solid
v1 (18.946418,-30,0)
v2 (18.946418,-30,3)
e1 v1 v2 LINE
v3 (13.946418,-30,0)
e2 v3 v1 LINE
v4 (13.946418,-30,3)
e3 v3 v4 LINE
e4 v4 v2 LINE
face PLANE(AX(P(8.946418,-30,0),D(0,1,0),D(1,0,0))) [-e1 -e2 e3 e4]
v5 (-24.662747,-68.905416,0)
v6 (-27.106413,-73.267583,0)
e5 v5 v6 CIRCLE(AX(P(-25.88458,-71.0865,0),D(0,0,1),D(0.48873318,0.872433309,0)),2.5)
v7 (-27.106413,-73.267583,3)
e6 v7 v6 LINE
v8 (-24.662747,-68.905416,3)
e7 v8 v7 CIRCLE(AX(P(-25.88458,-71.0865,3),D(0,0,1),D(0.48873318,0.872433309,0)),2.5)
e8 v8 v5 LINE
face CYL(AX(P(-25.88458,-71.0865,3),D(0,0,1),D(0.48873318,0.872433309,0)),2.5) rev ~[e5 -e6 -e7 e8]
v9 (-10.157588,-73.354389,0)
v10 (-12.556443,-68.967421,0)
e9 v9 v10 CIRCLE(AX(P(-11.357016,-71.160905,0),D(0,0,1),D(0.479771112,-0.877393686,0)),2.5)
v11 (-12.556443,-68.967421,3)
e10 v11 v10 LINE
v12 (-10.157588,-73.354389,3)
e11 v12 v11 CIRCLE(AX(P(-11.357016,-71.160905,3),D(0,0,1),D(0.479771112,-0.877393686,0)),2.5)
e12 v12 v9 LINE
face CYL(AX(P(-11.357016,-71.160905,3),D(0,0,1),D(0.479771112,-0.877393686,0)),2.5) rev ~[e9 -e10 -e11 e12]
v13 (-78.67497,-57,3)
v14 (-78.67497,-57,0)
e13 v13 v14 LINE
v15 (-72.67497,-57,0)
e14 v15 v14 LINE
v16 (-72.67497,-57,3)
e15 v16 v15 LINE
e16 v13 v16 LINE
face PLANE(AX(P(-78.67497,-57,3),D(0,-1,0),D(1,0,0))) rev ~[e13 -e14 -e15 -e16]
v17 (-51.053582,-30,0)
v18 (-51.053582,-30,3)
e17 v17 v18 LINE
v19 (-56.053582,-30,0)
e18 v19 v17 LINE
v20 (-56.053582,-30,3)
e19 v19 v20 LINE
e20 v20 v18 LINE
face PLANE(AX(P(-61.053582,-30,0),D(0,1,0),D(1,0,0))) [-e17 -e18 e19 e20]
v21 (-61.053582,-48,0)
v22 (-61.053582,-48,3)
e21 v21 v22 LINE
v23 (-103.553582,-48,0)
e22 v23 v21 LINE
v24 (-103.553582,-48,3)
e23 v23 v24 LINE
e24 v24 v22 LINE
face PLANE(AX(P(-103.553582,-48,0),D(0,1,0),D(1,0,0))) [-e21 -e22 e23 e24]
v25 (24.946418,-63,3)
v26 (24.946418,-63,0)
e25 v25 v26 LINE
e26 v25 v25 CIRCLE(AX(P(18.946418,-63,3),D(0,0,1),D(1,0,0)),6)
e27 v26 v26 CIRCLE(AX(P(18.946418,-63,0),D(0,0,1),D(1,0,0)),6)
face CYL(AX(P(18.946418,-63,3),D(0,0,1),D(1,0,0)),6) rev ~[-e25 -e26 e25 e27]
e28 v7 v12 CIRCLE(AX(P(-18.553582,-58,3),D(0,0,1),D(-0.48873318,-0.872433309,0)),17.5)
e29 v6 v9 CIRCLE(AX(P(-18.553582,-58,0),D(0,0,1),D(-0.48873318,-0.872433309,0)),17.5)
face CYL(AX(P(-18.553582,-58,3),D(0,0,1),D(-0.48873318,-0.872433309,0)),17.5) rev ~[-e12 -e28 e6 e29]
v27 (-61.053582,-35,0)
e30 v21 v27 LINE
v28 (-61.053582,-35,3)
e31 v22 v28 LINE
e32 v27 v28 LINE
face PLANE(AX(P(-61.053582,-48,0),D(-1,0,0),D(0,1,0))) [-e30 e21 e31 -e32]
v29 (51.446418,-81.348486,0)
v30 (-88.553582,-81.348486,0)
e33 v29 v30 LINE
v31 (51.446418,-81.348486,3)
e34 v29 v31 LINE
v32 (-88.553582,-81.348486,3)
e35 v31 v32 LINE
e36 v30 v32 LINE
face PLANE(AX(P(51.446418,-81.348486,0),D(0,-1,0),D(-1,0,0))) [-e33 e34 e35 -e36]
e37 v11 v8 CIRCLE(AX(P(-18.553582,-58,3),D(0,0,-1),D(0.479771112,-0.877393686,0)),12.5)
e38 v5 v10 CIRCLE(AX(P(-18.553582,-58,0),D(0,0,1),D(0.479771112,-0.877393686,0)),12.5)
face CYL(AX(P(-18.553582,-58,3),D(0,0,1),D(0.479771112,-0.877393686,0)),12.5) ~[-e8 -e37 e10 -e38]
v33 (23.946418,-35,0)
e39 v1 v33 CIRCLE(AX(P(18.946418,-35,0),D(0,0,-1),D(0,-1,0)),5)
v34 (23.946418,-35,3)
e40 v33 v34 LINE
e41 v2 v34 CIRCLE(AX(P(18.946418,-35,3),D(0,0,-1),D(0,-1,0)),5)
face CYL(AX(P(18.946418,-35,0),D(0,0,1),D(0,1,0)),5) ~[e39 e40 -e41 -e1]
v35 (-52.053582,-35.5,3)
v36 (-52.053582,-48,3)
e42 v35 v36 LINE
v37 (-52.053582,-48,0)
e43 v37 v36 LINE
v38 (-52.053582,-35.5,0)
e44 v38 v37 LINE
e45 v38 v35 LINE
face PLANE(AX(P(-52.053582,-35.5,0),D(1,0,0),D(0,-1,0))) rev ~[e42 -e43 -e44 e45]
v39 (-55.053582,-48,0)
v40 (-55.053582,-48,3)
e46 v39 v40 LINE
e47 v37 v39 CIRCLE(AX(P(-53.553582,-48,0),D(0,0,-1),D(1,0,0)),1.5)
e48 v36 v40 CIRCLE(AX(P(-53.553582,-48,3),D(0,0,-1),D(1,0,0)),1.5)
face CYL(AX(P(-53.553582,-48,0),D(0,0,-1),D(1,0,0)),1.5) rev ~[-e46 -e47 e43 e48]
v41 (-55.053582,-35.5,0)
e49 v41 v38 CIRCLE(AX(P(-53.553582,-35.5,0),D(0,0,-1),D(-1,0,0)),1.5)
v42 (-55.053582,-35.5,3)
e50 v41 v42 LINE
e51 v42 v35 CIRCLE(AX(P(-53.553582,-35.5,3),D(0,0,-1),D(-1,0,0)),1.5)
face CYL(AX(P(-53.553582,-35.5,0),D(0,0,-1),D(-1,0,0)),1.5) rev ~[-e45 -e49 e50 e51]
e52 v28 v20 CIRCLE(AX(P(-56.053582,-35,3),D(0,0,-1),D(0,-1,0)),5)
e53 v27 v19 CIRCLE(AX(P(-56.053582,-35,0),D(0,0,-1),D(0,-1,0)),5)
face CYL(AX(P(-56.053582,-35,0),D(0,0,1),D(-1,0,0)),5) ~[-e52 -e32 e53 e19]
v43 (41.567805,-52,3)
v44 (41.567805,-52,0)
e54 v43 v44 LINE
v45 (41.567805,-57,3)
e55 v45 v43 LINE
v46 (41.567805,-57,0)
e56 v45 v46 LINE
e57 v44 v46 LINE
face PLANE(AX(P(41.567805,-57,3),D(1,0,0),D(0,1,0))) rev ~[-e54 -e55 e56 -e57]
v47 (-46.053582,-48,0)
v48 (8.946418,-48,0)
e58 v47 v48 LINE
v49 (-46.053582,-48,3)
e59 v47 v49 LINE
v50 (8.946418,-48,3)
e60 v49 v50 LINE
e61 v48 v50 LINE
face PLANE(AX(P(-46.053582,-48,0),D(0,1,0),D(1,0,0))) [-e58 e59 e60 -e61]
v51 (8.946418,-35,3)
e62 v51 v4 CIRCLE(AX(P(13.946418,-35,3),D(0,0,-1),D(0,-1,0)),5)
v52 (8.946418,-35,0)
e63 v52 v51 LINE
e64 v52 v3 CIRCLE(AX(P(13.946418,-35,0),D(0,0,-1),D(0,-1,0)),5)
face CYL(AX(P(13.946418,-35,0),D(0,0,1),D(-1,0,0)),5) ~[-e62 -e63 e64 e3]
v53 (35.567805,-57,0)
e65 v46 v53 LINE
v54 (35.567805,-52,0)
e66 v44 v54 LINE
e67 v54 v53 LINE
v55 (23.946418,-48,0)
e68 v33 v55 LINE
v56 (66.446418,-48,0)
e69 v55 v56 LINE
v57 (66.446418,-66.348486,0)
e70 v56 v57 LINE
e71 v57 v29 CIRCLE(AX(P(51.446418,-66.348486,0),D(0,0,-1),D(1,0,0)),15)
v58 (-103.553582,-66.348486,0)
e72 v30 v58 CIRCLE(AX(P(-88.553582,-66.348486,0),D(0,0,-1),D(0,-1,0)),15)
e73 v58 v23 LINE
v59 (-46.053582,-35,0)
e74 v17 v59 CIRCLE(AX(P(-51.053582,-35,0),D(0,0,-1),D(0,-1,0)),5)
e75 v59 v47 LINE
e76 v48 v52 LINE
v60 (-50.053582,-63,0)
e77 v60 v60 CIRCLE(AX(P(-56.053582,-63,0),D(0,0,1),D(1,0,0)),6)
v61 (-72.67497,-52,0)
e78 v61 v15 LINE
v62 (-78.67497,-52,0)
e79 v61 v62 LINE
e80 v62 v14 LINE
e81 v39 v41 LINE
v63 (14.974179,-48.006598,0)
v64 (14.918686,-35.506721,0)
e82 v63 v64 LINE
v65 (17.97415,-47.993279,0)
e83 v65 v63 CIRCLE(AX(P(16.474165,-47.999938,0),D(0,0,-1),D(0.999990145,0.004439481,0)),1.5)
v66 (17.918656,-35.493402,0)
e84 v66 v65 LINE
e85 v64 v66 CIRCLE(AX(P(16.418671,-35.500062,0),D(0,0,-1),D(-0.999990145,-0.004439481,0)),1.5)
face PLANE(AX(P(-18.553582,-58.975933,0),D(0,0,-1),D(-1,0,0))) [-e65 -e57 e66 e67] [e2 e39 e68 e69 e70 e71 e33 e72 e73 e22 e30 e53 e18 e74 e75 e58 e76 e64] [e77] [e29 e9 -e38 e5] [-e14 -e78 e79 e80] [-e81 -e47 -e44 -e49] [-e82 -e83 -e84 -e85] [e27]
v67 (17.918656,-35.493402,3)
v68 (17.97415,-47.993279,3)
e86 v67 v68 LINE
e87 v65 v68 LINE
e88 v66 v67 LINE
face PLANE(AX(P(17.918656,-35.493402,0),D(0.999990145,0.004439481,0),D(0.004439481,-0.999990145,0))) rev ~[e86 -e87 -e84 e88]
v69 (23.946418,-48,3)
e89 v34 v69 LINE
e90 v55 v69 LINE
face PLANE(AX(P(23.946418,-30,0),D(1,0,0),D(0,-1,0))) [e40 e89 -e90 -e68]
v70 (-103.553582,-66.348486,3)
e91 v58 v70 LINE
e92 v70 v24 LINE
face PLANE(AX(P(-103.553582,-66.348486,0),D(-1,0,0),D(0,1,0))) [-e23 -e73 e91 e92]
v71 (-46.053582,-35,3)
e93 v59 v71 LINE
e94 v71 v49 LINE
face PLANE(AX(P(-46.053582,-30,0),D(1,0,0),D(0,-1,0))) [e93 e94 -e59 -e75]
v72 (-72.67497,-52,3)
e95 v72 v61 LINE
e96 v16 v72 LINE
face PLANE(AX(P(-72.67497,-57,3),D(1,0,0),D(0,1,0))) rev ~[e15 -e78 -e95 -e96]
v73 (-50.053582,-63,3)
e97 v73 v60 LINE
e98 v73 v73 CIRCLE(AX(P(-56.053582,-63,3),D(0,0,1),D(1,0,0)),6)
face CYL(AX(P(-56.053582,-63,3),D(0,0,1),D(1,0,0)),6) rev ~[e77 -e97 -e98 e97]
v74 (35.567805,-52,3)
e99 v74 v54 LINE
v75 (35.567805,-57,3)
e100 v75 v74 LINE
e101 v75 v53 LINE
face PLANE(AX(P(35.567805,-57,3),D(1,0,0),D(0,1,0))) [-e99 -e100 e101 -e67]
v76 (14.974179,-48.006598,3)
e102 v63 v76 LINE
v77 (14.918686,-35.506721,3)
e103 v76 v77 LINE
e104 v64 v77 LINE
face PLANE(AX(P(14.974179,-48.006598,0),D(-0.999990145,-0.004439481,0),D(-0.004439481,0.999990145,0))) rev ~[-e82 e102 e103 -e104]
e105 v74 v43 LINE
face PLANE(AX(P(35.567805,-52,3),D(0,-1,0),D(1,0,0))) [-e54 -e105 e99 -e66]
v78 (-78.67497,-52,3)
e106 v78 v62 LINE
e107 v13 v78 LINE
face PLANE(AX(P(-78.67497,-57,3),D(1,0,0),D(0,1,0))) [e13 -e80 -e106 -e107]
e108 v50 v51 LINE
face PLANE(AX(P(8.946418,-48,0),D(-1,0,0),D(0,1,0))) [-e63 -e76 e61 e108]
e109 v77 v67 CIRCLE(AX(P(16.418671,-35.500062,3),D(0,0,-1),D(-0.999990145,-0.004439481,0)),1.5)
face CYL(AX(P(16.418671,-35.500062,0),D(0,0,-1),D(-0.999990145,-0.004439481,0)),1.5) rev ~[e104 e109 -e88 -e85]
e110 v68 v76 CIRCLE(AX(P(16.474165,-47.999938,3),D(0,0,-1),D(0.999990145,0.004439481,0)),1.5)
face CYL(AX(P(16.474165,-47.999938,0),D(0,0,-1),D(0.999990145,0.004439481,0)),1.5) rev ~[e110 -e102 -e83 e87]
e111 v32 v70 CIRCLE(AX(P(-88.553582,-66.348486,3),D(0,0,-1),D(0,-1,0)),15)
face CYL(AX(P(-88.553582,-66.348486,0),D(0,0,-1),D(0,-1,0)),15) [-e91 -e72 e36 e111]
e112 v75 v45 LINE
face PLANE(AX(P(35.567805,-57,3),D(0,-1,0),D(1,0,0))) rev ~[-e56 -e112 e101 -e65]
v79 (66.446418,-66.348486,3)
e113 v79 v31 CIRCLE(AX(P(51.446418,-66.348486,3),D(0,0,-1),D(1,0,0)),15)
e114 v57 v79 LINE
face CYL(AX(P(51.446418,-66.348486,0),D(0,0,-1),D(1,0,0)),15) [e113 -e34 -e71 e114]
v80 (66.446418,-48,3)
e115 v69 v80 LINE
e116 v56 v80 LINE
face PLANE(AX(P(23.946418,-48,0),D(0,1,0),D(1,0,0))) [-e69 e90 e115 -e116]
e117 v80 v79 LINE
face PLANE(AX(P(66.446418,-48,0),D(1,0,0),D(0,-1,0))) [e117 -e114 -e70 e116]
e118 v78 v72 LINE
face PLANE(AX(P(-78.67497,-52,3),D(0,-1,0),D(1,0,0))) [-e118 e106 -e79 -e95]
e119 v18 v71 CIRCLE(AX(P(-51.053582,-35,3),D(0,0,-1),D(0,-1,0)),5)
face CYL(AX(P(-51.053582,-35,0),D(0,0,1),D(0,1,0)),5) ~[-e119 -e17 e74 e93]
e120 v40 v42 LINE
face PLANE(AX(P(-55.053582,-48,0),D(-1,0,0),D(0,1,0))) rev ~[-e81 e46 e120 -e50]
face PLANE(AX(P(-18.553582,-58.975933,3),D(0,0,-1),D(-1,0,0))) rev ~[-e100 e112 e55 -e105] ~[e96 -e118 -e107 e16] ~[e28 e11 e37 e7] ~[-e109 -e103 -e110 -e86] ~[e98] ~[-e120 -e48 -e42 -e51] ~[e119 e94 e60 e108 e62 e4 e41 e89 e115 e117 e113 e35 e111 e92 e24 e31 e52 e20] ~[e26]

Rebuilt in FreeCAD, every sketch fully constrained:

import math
import FreeCAD as App
import Part
import Sketcher
from FreeCAD import Vector
Q = App.Units.Quantity


def edges_at(feature, points):
    """Names of the edges that pass closest to the given points."""
    edges = feature.Shape.Edges
    near = lambda p: min(range(len(edges)), key=lambda i: edges[i].distToShape(Part.Vertex(*p))[0])
    return sorted({f"Edge{near(p) + 1}" for p in points})

doc = App.newDocument("Part")
body = doc.addObject("PartDesign::Body", "Body")

# Sketch on XY plane
sketch1 = body.newObject("Sketcher::SketchObject", "Sketch")
sketch1.AttachmentSupport = (doc.getObject("XY_Plane"), [""])
sketch1.MapMode = "FlatFace"
sketch1.addGeometry([
    Part.LineSegment(Vector(-61.053582, -48, 0), Vector(-103.553582, -48, 0)),  # 0
    Part.LineSegment(Vector(-103.553582, -48, 0), Vector(-103.553582, -66.348486, 0)),  # 1
    Part.ArcOfCircle(Part.Circle(Vector(-88.553582, -66.348486, 0), Vector(0, 0, 1), 15), math.radians(-180), math.radians(-90)),  # 2
    Part.LineSegment(Vector(-88.553582, -81.348486, 0), Vector(51.446418, -81.348486, 0)),  # 3
    Part.ArcOfCircle(Part.Circle(Vector(51.446418, -66.348486, 0), Vector(0, 0, 1), 15), math.radians(-90), math.radians(0)),  # 4
    Part.LineSegment(Vector(66.446418, -66.348486, 0), Vector(66.446418, -48, 0)),  # 5
    Part.LineSegment(Vector(66.446418, -48, 0), Vector(23.946418, -48, 0)),  # 6
    Part.LineSegment(Vector(23.946418, -48, 0), Vector(23.946418, -30, 0)),  # 7
    Part.LineSegment(Vector(23.946418, -30, 0), Vector(8.946418, -30, 0)),  # 8
    Part.LineSegment(Vector(8.946418, -30, 0), Vector(8.946418, -48, 0)),  # 9
    Part.LineSegment(Vector(8.946418, -48, 0), Vector(-46.053582, -48, 0)),  # 10
    Part.LineSegment(Vector(-46.053582, -48, 0), Vector(-46.053582, -30, 0)),  # 11
    Part.LineSegment(Vector(-46.053582, -30, 0), Vector(-61.053582, -30, 0)),  # 12
    Part.LineSegment(Vector(-61.053582, -30, 0), Vector(-61.053582, -48, 0)),  # 13
    Part.LineSegment(Vector(14.974179, -48.006598, 0), Vector(14.918686, -35.506721, 0)),  # 14
    Part.ArcOfCircle(Part.Circle(Vector(16.418671, -35.500062, 0), Vector(0, 0, 1), 1.5), math.radians(0.254364), math.radians(180.254364)),  # 15
    Part.LineSegment(Vector(17.918656, -35.493402, 0), Vector(17.97415, -47.993279, 0)),  # 16
    Part.ArcOfCircle(Part.Circle(Vector(16.474165, -47.999938, 0), Vector(0, 0, 1), 1.5), math.radians(-179.745636), math.radians(0.254364)),  # 17
    Part.LineSegment(Vector(-55.053582, -48, 0), Vector(-55.053582, -35.5, 0)),  # 18
    Part.ArcOfCircle(Part.Circle(Vector(-53.553582, -35.5, 0), Vector(0, 0, 1), 1.5), math.radians(0), math.radians(180)),  # 19
    Part.LineSegment(Vector(-52.053582, -35.5, 0), Vector(-52.053582, -48, 0)),  # 20
    Part.ArcOfCircle(Part.Circle(Vector(-53.553582, -48, 0), Vector(0, 0, 1), 1.5), math.radians(180), math.radians(360)),  # 21
], False)
sketch1.addConstraint([
    Sketcher.Constraint("Coincident", 0, 2, 1, 1),
    Sketcher.Constraint("Coincident", 1, 2, 2, 1),
    Sketcher.Constraint("Coincident", 2, 2, 3, 1),
    Sketcher.Constraint("Coincident", 3, 2, 4, 1),
    Sketcher.Constraint("Coincident", 4, 2, 5, 1),
    Sketcher.Constraint("Coincident", 5, 2, 6, 1),
    Sketcher.Constraint("Coincident", 6, 2, 7, 1),
    Sketcher.Constraint("Coincident", 7, 2, 8, 1),
    Sketcher.Constraint("Coincident", 8, 2, 9, 1),
    Sketcher.Constraint("Coincident", 9, 2, 10, 1),
    Sketcher.Constraint("Coincident", 10, 2, 11, 1),
    Sketcher.Constraint("Coincident", 11, 2, 12, 1),
    Sketcher.Constraint("Coincident", 12, 2, 13, 1),
    Sketcher.Constraint("Coincident", 13, 2, 0, 1),
    Sketcher.Constraint("Coincident", 14, 2, 15, 2),
    Sketcher.Constraint("Coincident", 15, 1, 16, 1),
    Sketcher.Constraint("Coincident", 16, 2, 17, 2),
    Sketcher.Constraint("Coincident", 17, 1, 14, 1),
    Sketcher.Constraint("Coincident", 18, 2, 19, 2),
    Sketcher.Constraint("Coincident", 19, 1, 20, 1),
    Sketcher.Constraint("Coincident", 20, 2, 21, 2),
    Sketcher.Constraint("Coincident", 21, 1, 18, 1),
    Sketcher.Constraint("Horizontal", 0),
    Sketcher.Constraint("Vertical", 1),
    Sketcher.Constraint("Horizontal", 3),
    Sketcher.Constraint("Vertical", 5),
    Sketcher.Constraint("Horizontal", 6),
    Sketcher.Constraint("Vertical", 7),
    Sketcher.Constraint("Horizontal", 8),
    Sketcher.Constraint("Vertical", 9),
    Sketcher.Constraint("Horizontal", 10),
    Sketcher.Constraint("Vertical", 11),
    Sketcher.Constraint("Horizontal", 12),
    Sketcher.Constraint("Vertical", 13),
    Sketcher.Constraint("Vertical", 18),
    Sketcher.Constraint("Vertical", 20),
    Sketcher.Constraint("Radius", 2, Q("15 mm")),
    Sketcher.Constraint("Radius", 4, Q("15 mm")),
    Sketcher.Constraint("Radius", 15, Q("1.5 mm")),
    Sketcher.Constraint("Radius", 17, Q("1.5 mm")),
    Sketcher.Constraint("Radius", 19, Q("1.5 mm")),
    Sketcher.Constraint("DistanceX", 3, 1, 3, 2, Q("140 mm")),
    Sketcher.Constraint("DistanceX", 8, 2, 8, 1, Q("15 mm")),
    Sketcher.Constraint("DistanceX", 10, 2, 10, 1, Q("55 mm")),
    Sketcher.Constraint("DistanceX", 12, 2, 12, 1, Q("15 mm")),
    Sketcher.Constraint("DistanceY", 7, 1, 7, 2, Q("18 mm")),
    Sketcher.Constraint("DistanceY", 9, 2, 9, 1, Q("18 mm")),
    Sketcher.Constraint("DistanceY", 11, 1, 11, 2, Q("18 mm")),
    Sketcher.Constraint("DistanceY", 13, 2, 13, 1, Q("18 mm")),
    Sketcher.Constraint("DistanceX", 0, 2, 0, 1, Q("42.5 mm")),
    Sketcher.Constraint("DistanceX", 6, 2, 6, 1, Q("42.5 mm")),
    Sketcher.Constraint("DistanceY", 18, 1, 18, 2, Q("12.5 mm")),
    Sketcher.Constraint("DistanceY", 20, 2, 20, 1, Q("12.5 mm")),
    Sketcher.Constraint("DistanceY", 21, 3, -1, 1, Q("48 mm")),
    Sketcher.Constraint("DistanceY", 0, 2, -1, 1, Q("48 mm")),
    Sketcher.Constraint("DistanceY", 20, 2, -1, 1, Q("48 mm")),
    Sketcher.Constraint("DistanceY", 21, 1, -1, 1, Q("48 mm")),
    Sketcher.Constraint("DistanceX", 2, 3, 19, 3, Q("35 mm")),
    Sketcher.Constraint("DistanceX", 1, 2, 2, 2, Q("15 mm")),
    Sketcher.Constraint("DistanceY", 2, 2, 1, 2, Q("15 mm")),
    Sketcher.Constraint("DistanceY", 3, 2, 4, 2, Q("15 mm")),
    Sketcher.Constraint("Distance", 14, Q("12.5 mm")),
    Sketcher.Constraint("Distance", 16, Q("12.5 mm")),
    Sketcher.Constraint("DistanceY", 19, 3, -1, 1, Q("35.5 mm")),
    Sketcher.Constraint("DistanceY", 1, 2, 1, 1, Q("18.348486 mm")),
    Sketcher.Constraint("DistanceX", -1, 1, 15, 3, Q("16.418671 mm")),
    Sketcher.Constraint("DistanceY", 15, 3, -1, 1, Q("35.500062 mm")),
    Sketcher.Constraint("DistanceY", 17, 3, -1, 1, Q("47.999938 mm")),
    Sketcher.Constraint("DistanceY", 14, 2, -1, 1, Q("35.506721 mm")),
    Sketcher.Constraint("DistanceX", -1, 1, 16, 2, Q("17.97415 mm")),
    Sketcher.Constraint("DistanceY", 16, 2, -1, 1, Q("47.993279 mm")),
    Sketcher.Constraint("DistanceX", 8, 2, 14, 2, Q("5.972268 mm")),
])
pad1 = body.newObject("PartDesign::Pad", "Pad")
pad1.Profile = sketch1
pad1.Length = 3
doc.recompute()

fillet = body.newObject("PartDesign::Fillet", "Fillet")
fillet.Base = (pad1, edges_at(pad1, [
    (-61.054, -30, 1.5),
    (-46.054, -30, 1.5),
    (8.946, -30, 1.5),
    (23.946, -30, 1.5),
]))
fillet.Radius = 5

# Sketch on XY plane
sketch2 = body.newObject("Sketcher::SketchObject", "Sketch001")
sketch2.AttachmentSupport = (doc.getObject("XY_Plane"), [""])
sketch2.MapMode = "FlatFace"
sketch2.AttachmentOffset = App.Placement(Vector(0, 0, 3), App.Rotation())
sketch2.addGeometry([
    Part.Circle(Vector(-56.1, -63, 0), Vector(0, 0, 1), 6),  # 0
    Part.Circle(Vector(18.9, -63, 0), Vector(0, 0, 1), 6),  # 1
    Part.ArcOfCircle(Part.Circle(Vector(-18.6, -58, 0), Vector(0, 0, 1), 17.5), math.radians(-119), math.radians(-61)),  # 2
    Part.ArcOfCircle(Part.Circle(Vector(-11.4, -71.2, 0), Vector(0, 0, 1), 2.5), math.radians(-61), math.radians(119)),  # 3
    Part.ArcOfCircle(Part.Circle(Vector(-18.6, -58, 0), Vector(0, 0, 1), 12.5), math.radians(-119), math.radians(-61)),  # 4
    Part.ArcOfCircle(Part.Circle(Vector(-25.9, -71.1, 0), Vector(0, 0, 1), 2.5), math.radians(61), math.radians(241)),  # 5
], False)
sketch2.addConstraint([
    Sketcher.Constraint("Tangent", 2, 2, 3, 1),
    Sketcher.Constraint("Tangent", 3, 2, 4, 2),
    Sketcher.Constraint("Tangent", 4, 1, 5, 1),
    Sketcher.Constraint("Tangent", 5, 2, 2, 1),
    Sketcher.Constraint("Coincident", 4, 3, 2, 3),
    Sketcher.Constraint("Equal", 0, 1),
    Sketcher.Constraint("Horizontal", 0, 3, 1, 3),
    Sketcher.Constraint("Diameter", 0, Q("12 mm")),
    Sketcher.Constraint("Radius", 2, Q("17.5 mm")),
    Sketcher.Constraint("Radius", 3, Q("2.5 mm")),
    Sketcher.Constraint("DistanceY", 0, 3, -1, 1, Q("63 mm")),
    Sketcher.Constraint("DistanceY", 2, 3, -1, 1, Q("58 mm")),
    Sketcher.Constraint("DistanceX", 0, 3, 1, 3, Q("75 mm")),
    Sketcher.Constraint("DistanceX", 0, 3, 2, 3, Q("37.5 mm")),
    Sketcher.Constraint("DistanceY", 5, 3, -1, 1, Q("71.0865 mm")),
    Sketcher.Constraint("DistanceX", 5, 3, -1, 1, Q("25.88458 mm")),
    Sketcher.Constraint("DistanceY", 2, 2, -1, 1, Q("73.354389 mm")),
])
pocket1 = body.newObject("PartDesign::Pocket", "Pocket")
pocket1.Profile = sketch2
pocket1.Length = 10

# Sketch on XY plane
sketch3 = body.newObject("Sketcher::SketchObject", "Sketch002")
sketch3.AttachmentSupport = (doc.getObject("XY_Plane"), [""])
sketch3.MapMode = "FlatFace"
sketch3.AttachmentOffset = App.Placement(Vector(0, 0, 3), App.Rotation())
sketch3.addGeometry([
    Part.LineSegment(Vector(36, -52, 0), Vector(36, -57, 0)),  # 0
    Part.LineSegment(Vector(36, -57, 0), Vector(42, -57, 0)),  # 1
    Part.LineSegment(Vector(42, -57, 0), Vector(42, -52, 0)),  # 2
    Part.LineSegment(Vector(42, -52, 0), Vector(36, -52, 0)),  # 3
    Part.LineSegment(Vector(-79, -52, 0), Vector(-79, -57, 0)),  # 4
    Part.LineSegment(Vector(-79, -57, 0), Vector(-73, -57, 0)),  # 5
    Part.LineSegment(Vector(-73, -57, 0), Vector(-73, -52, 0)),  # 6
    Part.LineSegment(Vector(-73, -52, 0), Vector(-79, -52, 0)),  # 7
], False)
sketch3.addConstraint([
    Sketcher.Constraint("Coincident", 0, 2, 1, 1),
    Sketcher.Constraint("Coincident", 1, 2, 2, 1),
    Sketcher.Constraint("Coincident", 2, 2, 3, 1),
    Sketcher.Constraint("Coincident", 3, 2, 0, 1),
    Sketcher.Constraint("Coincident", 4, 2, 5, 1),
    Sketcher.Constraint("Coincident", 5, 2, 6, 1),
    Sketcher.Constraint("Coincident", 6, 2, 7, 1),
    Sketcher.Constraint("Coincident", 7, 2, 4, 1),
    Sketcher.Constraint("Vertical", 0),
    Sketcher.Constraint("Horizontal", 1),
    Sketcher.Constraint("Vertical", 2),
    Sketcher.Constraint("Horizontal", 3),
    Sketcher.Constraint("Vertical", 4),
    Sketcher.Constraint("Horizontal", 5),
    Sketcher.Constraint("Vertical", 6),
    Sketcher.Constraint("Horizontal", 7),
    Sketcher.Constraint("Horizontal", 1, 2, 4, 2),
    Sketcher.Constraint("Horizontal", 3, 2, 6, 2),
    Sketcher.Constraint("Equal", 3, 5),
    Sketcher.Constraint("DistanceX", 1, 1, 1, 2, Q("6 mm")),
    Sketcher.Constraint("DistanceY", 0, 2, 0, 1, Q("5 mm")),
    Sketcher.Constraint("DistanceY", 0, 2, -1, 1, Q("57 mm")),
    Sketcher.Constraint("DistanceX", 4, 2, -1, 1, Q("78.67497 mm")),
    Sketcher.Constraint("DistanceX", -1, 1, 0, 2, Q("35.567805 mm")),
])
pocket2 = body.newObject("PartDesign::Pocket", "Pocket001")
pocket2.Profile = sketch3
pocket2.Length = 10

doc.recompute()
